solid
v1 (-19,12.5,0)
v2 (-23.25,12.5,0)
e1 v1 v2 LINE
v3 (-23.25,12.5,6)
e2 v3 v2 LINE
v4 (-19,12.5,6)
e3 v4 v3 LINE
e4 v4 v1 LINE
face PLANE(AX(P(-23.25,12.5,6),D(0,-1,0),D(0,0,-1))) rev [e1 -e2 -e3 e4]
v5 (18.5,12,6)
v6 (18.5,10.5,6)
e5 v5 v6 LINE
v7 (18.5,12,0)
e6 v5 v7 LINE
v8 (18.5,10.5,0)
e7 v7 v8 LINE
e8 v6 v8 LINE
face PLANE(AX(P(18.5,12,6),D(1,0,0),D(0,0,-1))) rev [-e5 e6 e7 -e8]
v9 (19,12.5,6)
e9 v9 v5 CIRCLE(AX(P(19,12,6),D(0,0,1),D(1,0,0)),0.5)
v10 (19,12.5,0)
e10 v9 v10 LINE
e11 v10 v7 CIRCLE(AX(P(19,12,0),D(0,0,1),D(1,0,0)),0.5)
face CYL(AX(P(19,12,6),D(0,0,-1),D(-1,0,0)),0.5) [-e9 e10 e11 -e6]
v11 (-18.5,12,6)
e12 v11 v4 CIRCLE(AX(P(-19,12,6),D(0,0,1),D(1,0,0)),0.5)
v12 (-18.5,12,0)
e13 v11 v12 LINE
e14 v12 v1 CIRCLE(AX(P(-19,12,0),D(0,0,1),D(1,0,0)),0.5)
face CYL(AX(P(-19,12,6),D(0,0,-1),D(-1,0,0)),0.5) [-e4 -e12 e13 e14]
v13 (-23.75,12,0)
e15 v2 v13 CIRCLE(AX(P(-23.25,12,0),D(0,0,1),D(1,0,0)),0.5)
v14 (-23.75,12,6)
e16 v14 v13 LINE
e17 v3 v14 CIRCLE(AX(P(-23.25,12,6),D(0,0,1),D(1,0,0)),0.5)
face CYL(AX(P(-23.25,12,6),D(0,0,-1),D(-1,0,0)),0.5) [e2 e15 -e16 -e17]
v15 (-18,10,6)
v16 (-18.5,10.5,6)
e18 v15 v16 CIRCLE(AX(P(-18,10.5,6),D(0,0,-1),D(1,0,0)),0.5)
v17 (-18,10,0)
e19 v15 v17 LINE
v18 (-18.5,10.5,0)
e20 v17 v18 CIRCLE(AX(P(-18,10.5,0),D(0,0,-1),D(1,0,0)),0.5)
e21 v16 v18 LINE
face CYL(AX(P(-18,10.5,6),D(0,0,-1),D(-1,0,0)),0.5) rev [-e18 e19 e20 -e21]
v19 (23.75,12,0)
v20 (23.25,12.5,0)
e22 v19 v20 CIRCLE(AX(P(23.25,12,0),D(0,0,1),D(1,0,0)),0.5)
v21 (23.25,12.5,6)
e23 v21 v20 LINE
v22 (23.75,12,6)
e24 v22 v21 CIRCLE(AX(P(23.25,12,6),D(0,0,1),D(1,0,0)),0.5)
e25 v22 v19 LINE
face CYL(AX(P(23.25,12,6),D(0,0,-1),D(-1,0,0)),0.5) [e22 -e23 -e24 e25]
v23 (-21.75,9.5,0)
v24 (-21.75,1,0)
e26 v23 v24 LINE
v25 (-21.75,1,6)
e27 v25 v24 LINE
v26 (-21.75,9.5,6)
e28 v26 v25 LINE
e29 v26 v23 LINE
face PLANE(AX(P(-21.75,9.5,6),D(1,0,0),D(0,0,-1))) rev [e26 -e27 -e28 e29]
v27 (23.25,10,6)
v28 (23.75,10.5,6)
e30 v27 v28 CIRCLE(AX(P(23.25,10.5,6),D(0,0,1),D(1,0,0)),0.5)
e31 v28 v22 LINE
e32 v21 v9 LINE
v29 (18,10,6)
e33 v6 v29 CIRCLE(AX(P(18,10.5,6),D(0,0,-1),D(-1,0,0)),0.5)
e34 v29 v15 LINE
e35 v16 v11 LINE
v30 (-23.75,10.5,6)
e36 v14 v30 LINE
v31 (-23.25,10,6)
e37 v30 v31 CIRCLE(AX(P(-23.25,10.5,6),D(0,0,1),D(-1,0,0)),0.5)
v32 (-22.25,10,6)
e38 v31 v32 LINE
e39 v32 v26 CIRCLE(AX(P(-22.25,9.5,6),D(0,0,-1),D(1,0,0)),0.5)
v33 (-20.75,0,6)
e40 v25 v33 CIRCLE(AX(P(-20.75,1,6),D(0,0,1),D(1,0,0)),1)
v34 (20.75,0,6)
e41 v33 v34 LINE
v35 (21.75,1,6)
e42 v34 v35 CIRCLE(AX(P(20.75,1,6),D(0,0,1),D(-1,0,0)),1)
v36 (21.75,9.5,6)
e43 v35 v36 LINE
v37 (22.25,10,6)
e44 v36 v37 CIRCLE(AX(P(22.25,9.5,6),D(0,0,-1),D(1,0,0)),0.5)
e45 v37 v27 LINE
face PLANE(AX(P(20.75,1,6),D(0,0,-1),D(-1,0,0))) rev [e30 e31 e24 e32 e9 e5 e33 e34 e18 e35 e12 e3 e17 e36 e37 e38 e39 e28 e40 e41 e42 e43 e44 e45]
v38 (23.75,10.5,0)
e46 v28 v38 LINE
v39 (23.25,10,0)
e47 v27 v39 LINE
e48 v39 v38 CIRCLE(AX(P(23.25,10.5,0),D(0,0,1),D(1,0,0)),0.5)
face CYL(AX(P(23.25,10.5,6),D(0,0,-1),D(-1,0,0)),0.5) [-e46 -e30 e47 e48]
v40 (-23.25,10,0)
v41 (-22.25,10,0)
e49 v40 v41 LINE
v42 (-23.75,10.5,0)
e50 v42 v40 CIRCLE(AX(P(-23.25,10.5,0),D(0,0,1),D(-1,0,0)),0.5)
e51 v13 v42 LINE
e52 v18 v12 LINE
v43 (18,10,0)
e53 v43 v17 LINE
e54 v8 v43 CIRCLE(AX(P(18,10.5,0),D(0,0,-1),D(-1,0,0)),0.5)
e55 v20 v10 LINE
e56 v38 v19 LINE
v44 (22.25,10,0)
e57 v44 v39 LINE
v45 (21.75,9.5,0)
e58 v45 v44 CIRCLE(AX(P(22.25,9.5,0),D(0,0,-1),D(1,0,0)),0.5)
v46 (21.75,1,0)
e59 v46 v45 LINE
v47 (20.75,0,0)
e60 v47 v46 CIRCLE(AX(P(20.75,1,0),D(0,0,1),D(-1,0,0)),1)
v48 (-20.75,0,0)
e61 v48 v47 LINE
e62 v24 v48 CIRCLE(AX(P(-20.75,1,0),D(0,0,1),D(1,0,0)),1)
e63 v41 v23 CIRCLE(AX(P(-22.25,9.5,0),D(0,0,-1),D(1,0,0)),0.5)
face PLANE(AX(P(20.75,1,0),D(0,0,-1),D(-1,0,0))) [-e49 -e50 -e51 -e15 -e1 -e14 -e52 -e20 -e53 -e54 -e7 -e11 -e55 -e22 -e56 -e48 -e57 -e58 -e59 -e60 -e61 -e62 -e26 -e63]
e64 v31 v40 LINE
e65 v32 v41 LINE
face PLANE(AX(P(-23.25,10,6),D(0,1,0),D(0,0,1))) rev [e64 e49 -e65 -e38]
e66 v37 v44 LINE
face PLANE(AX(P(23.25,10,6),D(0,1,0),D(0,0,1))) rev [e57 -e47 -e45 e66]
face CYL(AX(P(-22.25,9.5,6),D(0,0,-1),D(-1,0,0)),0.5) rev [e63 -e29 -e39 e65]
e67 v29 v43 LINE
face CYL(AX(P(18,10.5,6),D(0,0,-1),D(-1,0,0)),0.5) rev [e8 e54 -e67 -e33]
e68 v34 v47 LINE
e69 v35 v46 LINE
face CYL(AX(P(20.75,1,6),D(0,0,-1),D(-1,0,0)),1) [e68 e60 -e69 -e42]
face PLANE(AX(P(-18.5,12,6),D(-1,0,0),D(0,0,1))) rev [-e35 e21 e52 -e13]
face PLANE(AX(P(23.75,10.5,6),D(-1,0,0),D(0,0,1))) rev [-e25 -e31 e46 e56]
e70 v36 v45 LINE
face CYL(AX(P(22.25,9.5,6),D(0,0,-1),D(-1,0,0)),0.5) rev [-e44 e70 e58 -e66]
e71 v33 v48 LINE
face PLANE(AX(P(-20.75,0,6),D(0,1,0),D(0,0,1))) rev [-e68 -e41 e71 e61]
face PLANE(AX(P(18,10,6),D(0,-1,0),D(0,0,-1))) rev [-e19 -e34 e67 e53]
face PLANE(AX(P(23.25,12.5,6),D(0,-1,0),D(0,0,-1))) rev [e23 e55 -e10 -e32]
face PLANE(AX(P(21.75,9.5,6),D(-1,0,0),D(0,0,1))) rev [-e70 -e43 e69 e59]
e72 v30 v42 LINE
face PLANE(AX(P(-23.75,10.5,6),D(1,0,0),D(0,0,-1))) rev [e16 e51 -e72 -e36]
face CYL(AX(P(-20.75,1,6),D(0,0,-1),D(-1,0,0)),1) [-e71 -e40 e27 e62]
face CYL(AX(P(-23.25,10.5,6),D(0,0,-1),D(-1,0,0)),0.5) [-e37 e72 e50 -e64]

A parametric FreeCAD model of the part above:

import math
import FreeCAD as App
import Part
import Sketcher

V = App.Vector

doc = App.newDocument("Part")
body = doc.addObject("PartDesign::Body", "Body")

sketch1 = doc.addObject("Sketcher::SketchObject", "Sketch")
body.addObject(sketch1)
sketch1.AttachmentSupport = (doc.XY_Plane, [""])
sketch1.MapMode = "FlatFace"
sketch1.addGeometry(Part.LineSegment(V(-20.75, 0, 0), V(20.75, 0, 0)), False)
sketch1.addGeometry(Part.ArcOfCircle(Part.Circle(V(20.75, 1, 0), V(0, 0, 1), 1), math.radians(-90), math.radians(0)), False)
sketch1.addGeometry(Part.LineSegment(V(21.75, 1, 0), V(21.75, 9.5, 0)), False)
sketch1.addGeometry(Part.ArcOfCircle(Part.Circle(V(22.25, 9.5, 0), V(0, 0, 1), 0.5), math.radians(90), math.radians(180)), False)
sketch1.addGeometry(Part.LineSegment(V(22.25, 10, 0), V(23.25, 10, 0)), False)
sketch1.addGeometry(Part.ArcOfCircle(Part.Circle(V(23.25, 10.5, 0), V(0, 0, 1), 0.5), math.radians(-90), math.radians(0)), False)
sketch1.addGeometry(Part.LineSegment(V(23.75, 10.5, 0), V(23.75, 12, 0)), False)
sketch1.addGeometry(Part.ArcOfCircle(Part.Circle(V(23.25, 12, 0), V(0, 0, 1), 0.5), math.radians(0), math.radians(90)), False)
sketch1.addGeometry(Part.LineSegment(V(23.25, 12.5, 0), V(19, 12.5, 0)), False)
sketch1.addGeometry(Part.ArcOfCircle(Part.Circle(V(19, 12, 0), V(0, 0, 1), 0.5), math.radians(90), math.radians(180)), False)
sketch1.addGeometry(Part.LineSegment(V(18.5, 12, 0), V(18.5, 10.5, 0)), False)
sketch1.addGeometry(Part.ArcOfCircle(Part.Circle(V(18, 10.5, 0), V(0, 0, 1), 0.5), math.radians(-90), math.radians(0)), False)
sketch1.addGeometry(Part.LineSegment(V(18, 10, 0), V(-18, 10, 0)), False)
sketch1.addGeometry(Part.ArcOfCircle(Part.Circle(V(-18, 10.5, 0), V(0, 0, 1), 0.5), math.radians(180), math.radians(270)), False)
sketch1.addGeometry(Part.LineSegment(V(-18.5, 10.5, 0), V(-18.5, 12, 0)), False)
sketch1.addGeometry(Part.ArcOfCircle(Part.Circle(V(-19, 12, 0), V(0, 0, 1), 0.5), math.radians(0), math.radians(90)), False)
sketch1.addGeometry(Part.LineSegment(V(-19, 12.5, 0), V(-23.25, 12.5, 0)), False)
sketch1.addGeometry(Part.ArcOfCircle(Part.Circle(V(-23.25, 12, 0), V(0, 0, 1), 0.5), math.radians(90), math.radians(180)), False)
sketch1.addGeometry(Part.LineSegment(V(-23.75, 12, 0), V(-23.75, 10.5, 0)), False)
sketch1.addGeometry(Part.ArcOfCircle(Part.Circle(V(-23.25, 10.5, 0), V(0, 0, 1), 0.5), math.radians(180), math.radians(270)), False)
sketch1.addGeometry(Part.LineSegment(V(-23.25, 10, 0), V(-22.25, 10, 0)), False)
sketch1.addGeometry(Part.ArcOfCircle(Part.Circle(V(-22.25, 9.5, 0), V(0, 0, 1), 0.5), math.radians(0), math.radians(90)), False)
sketch1.addGeometry(Part.LineSegment(V(-21.75, 9.5, 0), V(-21.75, 1, 0)), False)
sketch1.addGeometry(Part.ArcOfCircle(Part.Circle(V(-20.75, 1, 0), V(0, 0, 1), 1), math.radians(-180), math.radians(-90)), False)
sketch1.addConstraint(Sketcher.Constraint("Tangent", 0, 2, 1, 1))
sketch1.addConstraint(Sketcher.Constraint("Tangent", 1, 2, 2, 1))
sketch1.addConstraint(Sketcher.Constraint("Tangent", 2, 2, 3, 2))
sketch1.addConstraint(Sketcher.Constraint("Tangent", 3, 1, 4, 1))
sketch1.addConstraint(Sketcher.Constraint("Tangent", 4, 2, 5, 1))
sketch1.addConstraint(Sketcher.Constraint("Tangent", 5, 2, 6, 1))
sketch1.addConstraint(Sketcher.Constraint("Tangent", 6, 2, 7, 1))
sketch1.addConstraint(Sketcher.Constraint("Tangent", 7, 2, 8, 1))
sketch1.addConstraint(Sketcher.Constraint("Tangent", 8, 2, 9, 1))
sketch1.addConstraint(Sketcher.Constraint("Tangent", 9, 2, 10, 1))
sketch1.addConstraint(Sketcher.Constraint("Tangent", 10, 2, 11, 2))
sketch1.addConstraint(Sketcher.Constraint("Tangent", 11, 1, 12, 1))
sketch1.addConstraint(Sketcher.Constraint("Tangent", 12, 2, 13, 2))
sketch1.addConstraint(Sketcher.Constraint("Tangent", 13, 1, 14, 1))
sketch1.addConstraint(Sketcher.Constraint("Tangent", 14, 2, 15, 1))
sketch1.addConstraint(Sketcher.Constraint("Tangent", 15, 2, 16, 1))
sketch1.addConstraint(Sketcher.Constraint("Tangent", 16, 2, 17, 1))
sketch1.addConstraint(Sketcher.Constraint("Tangent", 17, 2, 18, 1))
sketch1.addConstraint(Sketcher.Constraint("Tangent", 18, 2, 19, 1))
sketch1.addConstraint(Sketcher.Constraint("Tangent", 19, 2, 20, 1))
sketch1.addConstraint(Sketcher.Constraint("Tangent", 20, 2, 21, 2))
sketch1.addConstraint(Sketcher.Constraint("Tangent", 21, 1, 22, 1))
sketch1.addConstraint(Sketcher.Constraint("Tangent", 22, 2, 23, 1))
sketch1.addConstraint(Sketcher.Constraint("Tangent", 23, 2, 0, 1))
sketch1.addConstraint(Sketcher.Constraint("Horizontal", 0))
sketch1.addConstraint(Sketcher.Constraint("Vertical", 2))
sketch1.addConstraint(Sketcher.Constraint("Horizontal", 4))
sketch1.addConstraint(Sketcher.Constraint("Vertical", 6))
sketch1.addConstraint(Sketcher.Constraint("Horizontal", 8))
sketch1.addConstraint(Sketcher.Constraint("Vertical", 10))
sketch1.addConstraint(Sketcher.Constraint("Horizontal", 12))
sketch1.addConstraint(Sketcher.Constraint("Vertical", 14))
sketch1.addConstraint(Sketcher.Constraint("Horizontal", 16))
sketch1.addConstraint(Sketcher.Constraint("Vertical", 18))
sketch1.addConstraint(Sketcher.Constraint("Horizontal", 20))
sketch1.addConstraint(Sketcher.Constraint("Vertical", 22))
sketch1.addConstraint(Sketcher.Constraint("Equal", 3, 5))
sketch1.addConstraint(Sketcher.Constraint("Equal", 5, 7))
sketch1.addConstraint(Sketcher.Constraint("Equal", 7, 9))
sketch1.addConstraint(Sketcher.Constraint("Equal", 9, 11))
sketch1.addConstraint(Sketcher.Constraint("Equal", 11, 13))
sketch1.addConstraint(Sketcher.Constraint("Equal", 13, 15))
sketch1.addConstraint(Sketcher.Constraint("Equal", 15, 17))
sketch1.addConstraint(Sketcher.Constraint("Equal", 17, 19))
sketch1.addConstraint(Sketcher.Constraint("Equal", 19, 21))
sketch1.addConstraint(Sketcher.Constraint("Equal", 1, 23))
sketch1.addConstraint(Sketcher.Constraint("Symmetric", 0, 2, 23, 2, -1, 1))
sketch1.addConstraint(Sketcher.Constraint("Symmetric", 9, 3, 15, 3, -2))
sketch1.addConstraint(Sketcher.Constraint("Symmetric", 5, 3, 19, 3, -2))
sketch1.addConstraint(Sketcher.Constraint("Horizontal", 5, 3, 11, 3))
sketch1.addConstraint(Sketcher.Constraint("Radius", 1, 1.0))
sketch1.addConstraint(Sketcher.Constraint("Radius", 3, 0.5))
sketch1.addConstraint(Sketcher.Constraint("DistanceX", 4, 1, 4, 2, 1.0))
sketch1.addConstraint(Sketcher.Constraint("DistanceX", 12, 2, 12, 1, 36.0))
sketch1.addConstraint(Sketcher.Constraint("DistanceX", 0, 1, 0, 2, 41.5))
sketch1.addConstraint(Sketcher.Constraint("DistanceY", 2, 1, 2, 2, 8.5))
sketch1.addConstraint(Sketcher.Constraint("DistanceY", 6, 1, 6, 2, 1.5))
pad1 = doc.addObject("PartDesign::Pad", "Pad")
body.addObject(pad1)
pad1.Profile = sketch1
pad1.Length = 6

doc.recompute()
